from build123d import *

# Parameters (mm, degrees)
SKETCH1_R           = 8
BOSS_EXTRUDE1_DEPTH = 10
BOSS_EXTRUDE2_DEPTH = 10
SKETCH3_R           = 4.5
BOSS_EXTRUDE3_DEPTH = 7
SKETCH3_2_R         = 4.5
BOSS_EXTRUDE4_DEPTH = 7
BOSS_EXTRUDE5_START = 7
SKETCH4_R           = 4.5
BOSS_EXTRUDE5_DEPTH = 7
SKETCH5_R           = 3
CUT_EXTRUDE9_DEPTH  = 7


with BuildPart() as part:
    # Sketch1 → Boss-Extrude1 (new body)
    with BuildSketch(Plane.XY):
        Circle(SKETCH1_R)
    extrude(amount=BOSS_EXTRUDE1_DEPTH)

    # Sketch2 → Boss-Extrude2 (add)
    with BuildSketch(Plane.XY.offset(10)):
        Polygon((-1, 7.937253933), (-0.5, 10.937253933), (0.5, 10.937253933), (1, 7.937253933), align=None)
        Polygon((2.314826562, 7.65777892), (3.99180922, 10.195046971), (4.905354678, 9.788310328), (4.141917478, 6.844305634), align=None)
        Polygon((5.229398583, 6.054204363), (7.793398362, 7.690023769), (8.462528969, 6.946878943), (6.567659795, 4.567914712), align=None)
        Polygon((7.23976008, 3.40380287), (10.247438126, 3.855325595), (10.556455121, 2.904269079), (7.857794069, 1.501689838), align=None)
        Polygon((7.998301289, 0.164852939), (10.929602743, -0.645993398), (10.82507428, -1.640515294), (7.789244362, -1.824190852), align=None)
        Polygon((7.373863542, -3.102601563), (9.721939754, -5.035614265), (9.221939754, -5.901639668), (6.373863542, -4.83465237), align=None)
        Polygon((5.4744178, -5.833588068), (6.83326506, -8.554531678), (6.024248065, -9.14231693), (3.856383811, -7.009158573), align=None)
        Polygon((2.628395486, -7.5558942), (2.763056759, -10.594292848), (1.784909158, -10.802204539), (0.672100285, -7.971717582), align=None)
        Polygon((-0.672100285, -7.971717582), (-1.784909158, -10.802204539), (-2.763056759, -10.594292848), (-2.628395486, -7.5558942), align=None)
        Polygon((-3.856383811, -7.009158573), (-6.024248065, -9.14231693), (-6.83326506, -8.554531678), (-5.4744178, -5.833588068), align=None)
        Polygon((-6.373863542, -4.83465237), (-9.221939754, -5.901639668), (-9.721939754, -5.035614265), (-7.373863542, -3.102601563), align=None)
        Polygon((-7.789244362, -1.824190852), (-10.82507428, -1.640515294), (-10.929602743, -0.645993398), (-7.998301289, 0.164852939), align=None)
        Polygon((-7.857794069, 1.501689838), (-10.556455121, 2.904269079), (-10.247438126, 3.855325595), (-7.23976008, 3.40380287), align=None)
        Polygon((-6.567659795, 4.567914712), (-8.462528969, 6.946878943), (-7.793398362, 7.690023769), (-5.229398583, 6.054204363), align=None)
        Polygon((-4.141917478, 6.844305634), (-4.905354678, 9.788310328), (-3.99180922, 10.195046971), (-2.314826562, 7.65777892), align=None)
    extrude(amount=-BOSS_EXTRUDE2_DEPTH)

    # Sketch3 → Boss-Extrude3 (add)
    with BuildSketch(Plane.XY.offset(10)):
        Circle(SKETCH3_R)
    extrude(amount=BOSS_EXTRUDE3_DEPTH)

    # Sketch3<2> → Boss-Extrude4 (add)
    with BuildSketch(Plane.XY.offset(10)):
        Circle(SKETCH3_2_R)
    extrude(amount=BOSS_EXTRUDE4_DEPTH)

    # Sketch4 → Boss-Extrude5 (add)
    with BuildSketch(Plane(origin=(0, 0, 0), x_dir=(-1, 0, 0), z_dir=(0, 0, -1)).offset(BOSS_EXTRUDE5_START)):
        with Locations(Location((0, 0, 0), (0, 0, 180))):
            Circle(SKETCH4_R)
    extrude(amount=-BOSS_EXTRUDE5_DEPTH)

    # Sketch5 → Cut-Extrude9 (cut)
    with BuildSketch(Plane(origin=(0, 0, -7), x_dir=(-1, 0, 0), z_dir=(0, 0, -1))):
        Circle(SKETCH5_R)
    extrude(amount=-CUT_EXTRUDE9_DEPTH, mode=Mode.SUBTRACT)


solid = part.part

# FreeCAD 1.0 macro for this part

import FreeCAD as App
import Part
import Sketcher
from FreeCAD import Vector
Q = App.Units.Quantity


def add_polygon(sketch, points):
    """Adds a closed chain of lines whose ends are joined by coincident constraints."""
    first, n = sketch.GeometryCount, len(points)
    for a, b in zip(points, points[1:] + points[:1]):
        sketch.addGeometry(Part.LineSegment(App.Vector(*a, 0), App.Vector(*b, 0)), False)
    for i in range(n):
        sketch.addConstraint(Sketcher.Constraint("Coincident", first + i, 2, first + (i + 1) % n, 1))

doc = App.newDocument("Part")
params = doc.addObject("Spreadsheet::Sheet", "Params")
for row, (alias, value) in enumerate([
    ("sketch1_diameter", "16 mm"),
    ("pad1_length", "10 mm"),
    ("sketch2_width", "2 mm"),
    ("sketch2_width2", "1 mm"),
    ("sketch2_length", "2 mm"),
    ("sketch2_length2", "1 mm"),
    ("pad2_length", "10 mm"),
    ("sketch3_diameter", "9 mm"),
    ("pad3_length", "7 mm"),
    ("sketch4_diameter", "9 mm"),
    ("pad4_length", "7 mm"),
    ("sketch5_diameter", "9 mm"),
    ("pad5_length", "7 mm"),
    ("sketch6_diameter", "6 mm"),
    ("pocket1_length", "7 mm"),
], start=1):
    params.set(f"A{row}", alias)
    params.set(f"B{row}", "=" + value)
    params.setAlias(f"B{row}", alias)

body = doc.addObject("PartDesign::Body", "Body")

sketch1 = doc.addObject("Sketcher::SketchObject", "Sketch")
body.addObject(sketch1)
sketch1.AttachmentSupport = (doc.XY_Plane, [""])
sketch1.MapMode = "FlatFace"
sketch1.addGeometry(Part.Circle(Vector(0, 0, 0), Vector(0, 0, 1), 8), False)
sketch1.addConstraint(Sketcher.Constraint("Coincident", 0, 3, -1, 1))
sketch1.addConstraint(Sketcher.Constraint("Diameter", 0, 16.0))
sketch1.setExpression("Constraints[1]", "Params.sketch1_diameter")
pad1 = doc.addObject("PartDesign::Pad", "Pad")
body.addObject(pad1)
pad1.Profile = sketch1
pad1.setExpression("Length", "Params.pad1_length")

sketch2 = doc.addObject("Sketcher::SketchObject", "Sketch001")
body.addObject(sketch2)
sketch2.AttachmentSupport = (doc.XY_Plane, [""])
sketch2.MapMode = "FlatFace"
sketch2.AttachmentOffset = App.Placement(Vector(0, 0, 10), App.Rotation())
add_polygon(sketch2, [(-0.5, 10.937254), (-1, 7.937254), (1, 7.937254), (0.5, 10.937254)])
add_polygon(sketch2, [(3.991809, 10.195047), (2.314827, 7.657779), (4.141917, 6.844306), (4.905355, 9.78831)])
add_polygon(sketch2, [(7.793398, 7.690024), (5.229399, 6.054204), (6.56766, 4.567915), (8.462529, 6.946879)])
add_polygon(sketch2, [(10.247438, 3.855326), (7.23976, 3.403803), (7.857794, 1.50169), (10.556455, 2.904269)])
add_polygon(sketch2, [(10.929603, -0.645993), (7.998301, 0.164853), (7.789244, -1.824191), (10.825074, -1.640515)])
add_polygon(sketch2, [(9.72194, -5.035614), (7.373864, -3.102602), (6.373864, -4.834652), (9.22194, -5.90164)])
add_polygon(sketch2, [(6.833265, -8.554532), (5.474418, -5.833588), (3.856384, -7.009159), (6.024248, -9.142317)])
add_polygon(sketch2, [(2.763057, -10.594293), (2.628395, -7.555894), (0.6721, -7.971718), (1.784909, -10.802205)])
add_polygon(sketch2, [(-1.784909, -10.802205), (-0.6721, -7.971718), (-2.628395, -7.555894), (-2.763057, -10.594293)])
add_polygon(sketch2, [(-6.024248, -9.142317), (-3.856384, -7.009159), (-5.474418, -5.833588), (-6.833265, -8.554532)])
add_polygon(sketch2, [(-9.22194, -5.90164), (-6.373864, -4.834652), (-7.373864, -3.102602), (-9.72194, -5.035614)])
add_polygon(sketch2, [(-10.825074, -1.640515), (-7.789244, -1.824191), (-7.998301, 0.164853), (-10.929603, -0.645993)])
add_polygon(sketch2, [(-10.556455, 2.904269), (-7.857794, 1.50169), (-7.23976, 3.403803), (-10.247438, 3.855326)])
add_polygon(sketch2, [(-8.462529, 6.946879), (-6.56766, 4.567915), (-5.229399, 6.054204), (-7.793398, 7.690024)])
add_polygon(sketch2, [(-4.905355, 9.78831), (-4.141917, 6.844306), (-2.314827, 7.657779), (-3.991809, 10.195047)])
sketch2.addConstraint(Sketcher.Constraint("Horizontal", 1))
sketch2.addConstraint(Sketcher.Constraint("Horizontal", 3))
sketch2.addConstraint(Sketcher.Constraint("Symmetric", 29, 2, 32, 2, -2))
sketch2.addConstraint(Sketcher.Constraint("Symmetric", 28, 2, 33, 2, -2))
sketch2.addConstraint(Sketcher.Constraint("Symmetric", 31, 2, 34, 2, -2))
sketch2.addConstraint(Sketcher.Constraint("Symmetric", 30, 2, 35, 2, -2))
sketch2.addConstraint(Sketcher.Constraint("Symmetric", 25, 2, 36, 2, -2))
sketch2.addConstraint(Sketcher.Constraint("Symmetric", 24, 2, 37, 2, -2))
sketch2.addConstraint(Sketcher.Constraint("Symmetric", 27, 2, 38, 2, -2))
sketch2.addConstraint(Sketcher.Constraint("Symmetric", 26, 2, 39, 2, -2))
sketch2.addConstraint(Sketcher.Constraint("Symmetric", 21, 2, 40, 2, -2))
sketch2.addConstraint(Sketcher.Constraint("Symmetric", 20, 2, 41, 2, -2))
sketch2.addConstraint(Sketcher.Constraint("Symmetric", 23, 2, 42, 2, -2))
sketch2.addConstraint(Sketcher.Constraint("Symmetric", 22, 2, 43, 2, -2))
sketch2.addConstraint(Sketcher.Constraint("Symmetric", 17, 2, 44, 2, -2))
sketch2.addConstraint(Sketcher.Constraint("Symmetric", 16, 2, 45, 2, -2))
sketch2.addConstraint(Sketcher.Constraint("Symmetric", 19, 2, 46, 2, -2))
sketch2.addConstraint(Sketcher.Constraint("Symmetric", 18, 2, 47, 2, -2))
sketch2.addConstraint(Sketcher.Constraint("Symmetric", 13, 2, 48, 2, -2))
sketch2.addConstraint(Sketcher.Constraint("Symmetric", 12, 2, 49, 2, -2))
sketch2.addConstraint(Sketcher.Constraint("Symmetric", 15, 2, 50, 2, -2))
sketch2.addConstraint(Sketcher.Constraint("Symmetric", 14, 2, 51, 2, -2))
sketch2.addConstraint(Sketcher.Constraint("Symmetric", 9, 2, 52, 2, -2))
sketch2.addConstraint(Sketcher.Constraint("Symmetric", 8, 2, 53, 2, -2))
sketch2.addConstraint(Sketcher.Constraint("Symmetric", 11, 2, 54, 2, -2))
sketch2.addConstraint(Sketcher.Constraint("Symmetric", 10, 2, 55, 2, -2))
sketch2.addConstraint(Sketcher.Constraint("Symmetric", 5, 2, 56, 2, -2))
sketch2.addConstraint(Sketcher.Constraint("Symmetric", 4, 2, 57, 2, -2))
sketch2.addConstraint(Sketcher.Constraint("Symmetric", 7, 2, 58, 2, -2))
sketch2.addConstraint(Sketcher.Constraint("Symmetric", 6, 2, 59, 2, -2))
sketch2.addConstraint(Sketcher.Constraint("Parallel", 5, 7))
sketch2.addConstraint(Sketcher.Constraint("Parallel", 9, 11))
sketch2.addConstraint(Sketcher.Constraint("Parallel", 13, 15))
sketch2.addConstraint(Sketcher.Constraint("Parallel", 17, 19))
sketch2.addConstraint(Sketcher.Constraint("Parallel", 21, 23))
sketch2.addConstraint(Sketcher.Constraint("Parallel", 25, 27))
sketch2.addConstraint(Sketcher.Constraint("Parallel", 29, 31))
sketch2.addConstraint(Sketcher.Constraint("Equal", 0, 2))
sketch2.addConstraint(Sketcher.Constraint("Equal", 2, 4))
sketch2.addConstraint(Sketcher.Constraint("Equal", 4, 6))
sketch2.addConstraint(Sketcher.Constraint("Equal", 6, 8))
sketch2.addConstraint(Sketcher.Constraint("Equal", 5, 9))
sketch2.addConstraint(Sketcher.Constraint("Equal", 8, 10))
sketch2.addConstraint(Sketcher.Constraint("Equal", 7, 11))
sketch2.addConstraint(Sketcher.Constraint("Equal", 10, 12))
sketch2.addConstraint(Sketcher.Constraint("Equal", 9, 13))
sketch2.addConstraint(Sketcher.Constraint("Equal", 12, 14))
sketch2.addConstraint(Sketcher.Constraint("Equal", 11, 15))
sketch2.addConstraint(Sketcher.Constraint("Equal", 14, 16))
sketch2.addConstraint(Sketcher.Constraint("Equal", 13, 17))
sketch2.addConstraint(Sketcher.Constraint("Equal", 16, 18))
sketch2.addConstraint(Sketcher.Constraint("Equal", 15, 19))
sketch2.addConstraint(Sketcher.Constraint("Equal", 18, 20))
sketch2.addConstraint(Sketcher.Constraint("Equal", 17, 21))
sketch2.addConstraint(Sketcher.Constraint("Equal", 20, 22))
sketch2.addConstraint(Sketcher.Constraint("Equal", 19, 23))
sketch2.addConstraint(Sketcher.Constraint("Equal", 22, 24))
sketch2.addConstraint(Sketcher.Constraint("Equal", 21, 25))
sketch2.addConstraint(Sketcher.Constraint("Equal", 24, 26))
sketch2.addConstraint(Sketcher.Constraint("Equal", 23, 27))
sketch2.addConstraint(Sketcher.Constraint("Equal", 26, 28))
sketch2.addConstraint(Sketcher.Constraint("Equal", 25, 29))
sketch2.addConstraint(Sketcher.Constraint("Equal", 28, 30))
sketch2.addConstraint(Sketcher.Constraint("Equal", 27, 31))
sketch2.addConstraint(Sketcher.Constraint("DistanceX", 1, 1, 1, 2, 2.0))
sketch2.addConstraint(Sketcher.Constraint("DistanceX", 3, 2, 3, 1, 1.0))
sketch2.addConstraint(Sketcher.Constraint("Angle", 5, Q("-24 deg")))
sketch2.addConstraint(Sketcher.Constraint("Angle", 9, Q("-48 deg")))
sketch2.addConstraint(Sketcher.Constraint("Angle", 13, Q("-72 deg")))
sketch2.addConstraint(Sketcher.Constraint("Angle", 17, Q("-96 deg")))
sketch2.addConstraint(Sketcher.Constraint("Angle", 21, Q("-120 deg")))
sketch2.addConstraint(Sketcher.Constraint("Angle", 25, Q("-144 deg")))
sketch2.addConstraint(Sketcher.Constraint("Angle", 29, Q("-168 deg")))
sketch2.addConstraint(Sketcher.Constraint("Distance", 5, 2.0))
sketch2.addConstraint(Sketcher.Constraint("Distance", 7, 1.0))
sketch2.addConstraint(Sketcher.Constraint("DistanceX", 0, 2, -1, 1, 1.0))
sketch2.addConstraint(Sketcher.Constraint("DistanceY", 1, 2, 2, 2, 3.0))
sketch2.addConstraint(Sketcher.Constraint("DistanceX", -1, 1, 8, 2, 5.229399))
sketch2.addConstraint(Sketcher.Constraint("DistanceX", -1, 1, 16, 2, 7.998301))
sketch2.addConstraint(Sketcher.Constraint("DistanceY", 20, 2, -1, 1, 3.102602))
sketch2.addConstraint(Sketcher.Constraint("DistanceX", -1, 1, 29, 2, 0.6721))
sketch2.addConstraint(Sketcher.Constraint("DistanceY", 8, 2, 5, 2, 0.790101))
sketch2.addConstraint(Sketcher.Constraint("DistanceX", 9, 2, 12, 2, 0.6721))
sketch2.addConstraint(Sketcher.Constraint("DistanceY", 12, 2, 8, 2, 2.650401))
sketch2.addConstraint(Sketcher.Constraint("DistanceY", 23, 2, 18, 2, 3.395099))
sketch2.addConstraint(Sketcher.Constraint("DistanceX", 21, 2, 27, 2, 0.459402))
sketch2.addConstraint(Sketcher.Constraint("DistanceY", 26, 2, 29, 2, 1.170599))
sketch2.addConstraint(Sketcher.Constraint("DistanceY", -1, 1, 4, 2, 7.657779))
sketch2.addConstraint(Sketcher.Constraint("DistanceX", -1, 1, 7, 2, 3.991809))
sketch2.addConstraint(Sketcher.Constraint("DistanceX", -1, 1, 22, 2, 9.22194))
sketch2.addConstraint(Sketcher.Constraint("DistanceY", 24, 2, -1, 1, 5.833588))
sketch2.addConstraint(Sketcher.Constraint("DistanceY", 5, 2, 1, 2, 1.092948))
sketch2.setExpression("Constraints[124]", "Params.sketch2_width")
sketch2.setExpression("Constraints[125]", "Params.sketch2_width2")
sketch2.setExpression("Constraints[133]", "Params.sketch2_length")
sketch2.setExpression("Constraints[134]", "Params.sketch2_length2")
pad2 = doc.addObject("PartDesign::Pad", "Pad001")
body.addObject(pad2)
pad2.Profile = sketch2
pad2.setExpression("Length", "Params.pad2_length")
pad2.Reversed = True

sketch3 = doc.addObject("Sketcher::SketchObject", "Sketch002")
body.addObject(sketch3)
sketch3.AttachmentSupport = (doc.XY_Plane, [""])
sketch3.MapMode = "FlatFace"
sketch3.AttachmentOffset = App.Placement(Vector(0, 0, 10), App.Rotation())
sketch3.addGeometry(Part.Circle(Vector(0, 0, 0), Vector(0, 0, 1), 4.5), False)
sketch3.addConstraint(Sketcher.Constraint("Coincident", 0, 3, -1, 1))
sketch3.addConstraint(Sketcher.Constraint("Diameter", 0, 9.0))
sketch3.setExpression("Constraints[1]", "Params.sketch3_diameter")
pad3 = doc.addObject("PartDesign::Pad", "Pad002")
body.addObject(pad3)
pad3.Profile = sketch3
pad3.setExpression("Length", "Params.pad3_length")

sketch4 = doc.addObject("Sketcher::SketchObject", "Sketch003")
body.addObject(sketch4)
sketch4.AttachmentSupport = (doc.XY_Plane, [""])
sketch4.MapMode = "FlatFace"
sketch4.AttachmentOffset = App.Placement(Vector(0, 0, 10), App.Rotation())
sketch4.addGeometry(Part.Circle(Vector(0, 0, 0), Vector(0, 0, 1), 4.5), False)
sketch4.addConstraint(Sketcher.Constraint("Coincident", 0, 3, -1, 1))
sketch4.addConstraint(Sketcher.Constraint("Diameter", 0, 9.0))
sketch4.setExpression("Constraints[1]", "Params.sketch4_diameter")
pad4 = doc.addObject("PartDesign::Pad", "Pad003")
body.addObject(pad4)
pad4.Profile = sketch4
pad4.setExpression("Length", "Params.pad4_length")

sketch5 = doc.addObject("Sketcher::SketchObject", "Sketch004")
body.addObject(sketch5)
sketch5.AttachmentSupport = (doc.XY_Plane, [""])
sketch5.MapMode = "FlatFace"
sketch5.AttachmentOffset = App.Placement(Vector(0, 0, -7), App.Rotation())
sketch5.addGeometry(Part.Circle(Vector(0, 0, 0), Vector(0, 0, 1), 4.5), False)
sketch5.addConstraint(Sketcher.Constraint("Coincident", 0, 3, -1, 1))
sketch5.addConstraint(Sketcher.Constraint("Diameter", 0, 9.0))
sketch5.setExpression("Constraints[1]", "Params.sketch5_diameter")
pad5 = doc.addObject("PartDesign::Pad", "Pad004")
body.addObject(pad5)
pad5.Profile = sketch5
pad5.setExpression("Length", "Params.pad5_length")

sketch6 = doc.addObject("Sketcher::SketchObject", "Sketch005")
body.addObject(sketch6)
sketch6.AttachmentSupport = (doc.XY_Plane, [""])
sketch6.MapMode = "FlatFace"
sketch6.AttachmentOffset = App.Placement(Vector(0, 0, -7), App.Rotation())
sketch6.addGeometry(Part.Circle(Vector(0, 0, 0), Vector(0, 0, 1), 3), False)
sketch6.addConstraint(Sketcher.Constraint("Coincident", 0, 3, -1, 1))
sketch6.addConstraint(Sketcher.Constraint("Diameter", 0, 6.0))
sketch6.setExpression("Constraints[1]", "Params.sketch6_diameter")
pocket1 = doc.addObject("PartDesign::Pocket", "Pocket")
body.addObject(pocket1)
pocket1.Profile = sketch6
pocket1.setExpression("Length", "Params.pocket1_length")
pocket1.Reversed = True

doc.recompute()
